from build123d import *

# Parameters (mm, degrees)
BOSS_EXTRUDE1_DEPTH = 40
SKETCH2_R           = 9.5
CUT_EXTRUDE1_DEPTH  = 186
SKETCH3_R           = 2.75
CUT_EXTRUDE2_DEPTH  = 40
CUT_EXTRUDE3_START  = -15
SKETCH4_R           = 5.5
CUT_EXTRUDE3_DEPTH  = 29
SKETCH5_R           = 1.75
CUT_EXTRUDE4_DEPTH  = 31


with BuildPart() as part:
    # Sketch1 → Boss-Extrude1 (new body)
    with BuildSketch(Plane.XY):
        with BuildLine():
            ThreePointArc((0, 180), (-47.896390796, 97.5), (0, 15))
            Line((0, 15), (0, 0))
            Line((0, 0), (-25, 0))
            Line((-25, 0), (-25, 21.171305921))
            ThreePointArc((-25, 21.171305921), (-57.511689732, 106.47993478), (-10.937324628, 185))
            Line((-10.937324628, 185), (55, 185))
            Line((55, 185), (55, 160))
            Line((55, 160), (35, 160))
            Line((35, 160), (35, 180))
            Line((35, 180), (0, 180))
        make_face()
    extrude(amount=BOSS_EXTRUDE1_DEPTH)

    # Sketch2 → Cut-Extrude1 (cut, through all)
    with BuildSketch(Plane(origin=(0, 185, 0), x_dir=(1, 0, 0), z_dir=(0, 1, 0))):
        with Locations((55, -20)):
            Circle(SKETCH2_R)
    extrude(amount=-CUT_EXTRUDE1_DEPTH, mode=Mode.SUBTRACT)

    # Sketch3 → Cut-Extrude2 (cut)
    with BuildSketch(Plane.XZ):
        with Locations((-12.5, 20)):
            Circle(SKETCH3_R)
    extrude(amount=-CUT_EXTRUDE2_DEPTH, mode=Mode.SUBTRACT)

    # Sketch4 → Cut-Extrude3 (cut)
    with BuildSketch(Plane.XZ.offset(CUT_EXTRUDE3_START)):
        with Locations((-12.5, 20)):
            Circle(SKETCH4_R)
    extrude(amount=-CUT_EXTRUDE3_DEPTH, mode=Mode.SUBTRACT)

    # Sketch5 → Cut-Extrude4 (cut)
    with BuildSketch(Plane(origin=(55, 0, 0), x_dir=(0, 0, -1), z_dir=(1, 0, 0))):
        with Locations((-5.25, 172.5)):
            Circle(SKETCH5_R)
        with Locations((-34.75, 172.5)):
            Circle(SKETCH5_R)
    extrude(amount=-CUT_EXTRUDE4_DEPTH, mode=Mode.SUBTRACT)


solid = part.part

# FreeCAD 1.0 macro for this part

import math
import FreeCAD as App
import Part
import Sketcher
from FreeCAD import Vector

doc = App.newDocument("Part")
body = doc.addObject("PartDesign::Body", "Body")

# Sketch on XY plane
sketch1 = body.newObject("Sketcher::SketchObject", "Sketch")
sketch1.AttachmentSupport = (doc.getObject("XY_Plane"), [""])
sketch1.MapMode = "FlatFace"
sketch1.addGeometry(Part.ArcOfCircle(Part.Circle(Vector(47, 98, 0), Vector(0, 0, 1), 95), math.radians(120), math.radians(240)), False)
sketch1.addGeometry(Part.LineSegment(Vector(0, 180, 0), Vector(35, 180, 0)), False)
sketch1.addGeometry(Part.LineSegment(Vector(35, 180, 0), Vector(35, 160, 0)), False)
sketch1.addGeometry(Part.LineSegment(Vector(35, 160, 0), Vector(55, 160, 0)), False)
sketch1.addGeometry(Part.LineSegment(Vector(55, 160, 0), Vector(55, 185, 0)), False)
sketch1.addGeometry(Part.LineSegment(Vector(55, 185, 0), Vector(-11, 185, 0)), False)
sketch1.addGeometry(Part.ArcOfCircle(Part.Circle(Vector(47, 98, 0), Vector(0, 0, 1), 105), math.radians(124), math.radians(227)), False)
sketch1.addGeometry(Part.LineSegment(Vector(-25, 21, 0), Vector(-25, 0, 0)), False)
sketch1.addGeometry(Part.LineSegment(Vector(-25, 0, 0), Vector(0, 0, 0)), False)
sketch1.addGeometry(Part.LineSegment(Vector(0, 0, 0), Vector(0, 15, 0)), False)
sketch1.addConstraint(Sketcher.Constraint("Coincident", 0, 1, 1, 1))
sketch1.addConstraint(Sketcher.Constraint("Coincident", 1, 2, 2, 1))
sketch1.addConstraint(Sketcher.Constraint("Coincident", 2, 2, 3, 1))
sketch1.addConstraint(Sketcher.Constraint("Coincident", 3, 2, 4, 1))
sketch1.addConstraint(Sketcher.Constraint("Coincident", 4, 2, 5, 1))
sketch1.addConstraint(Sketcher.Constraint("Coincident", 5, 2, 6, 1))
sketch1.addConstraint(Sketcher.Constraint("Coincident", 6, 2, 7, 1))
sketch1.addConstraint(Sketcher.Constraint("Coincident", 7, 2, 8, 1))
sketch1.addConstraint(Sketcher.Constraint("Coincident", 8, 2, 9, 1))
sketch1.addConstraint(Sketcher.Constraint("Coincident", 9, 2, 0, 2))
sketch1.addConstraint(Sketcher.Constraint("Horizontal", 1))
sketch1.addConstraint(Sketcher.Constraint("Vertical", 2))
sketch1.addConstraint(Sketcher.Constraint("Horizontal", 3))
sketch1.addConstraint(Sketcher.Constraint("Vertical", 4))
sketch1.addConstraint(Sketcher.Constraint("Horizontal", 5))
sketch1.addConstraint(Sketcher.Constraint("Vertical", 7))
sketch1.addConstraint(Sketcher.Constraint("Horizontal", 8))
sketch1.addConstraint(Sketcher.Constraint("Vertical", 9))
sketch1.addConstraint(Sketcher.Constraint("Coincident", 8, 2, -1, 1))
sketch1.addConstraint(Sketcher.Constraint("Coincident", 6, 3, 0, 3))
sketch1.addConstraint(Sketcher.Constraint("PointOnObject", 0, 1, -2))
sketch1.addConstraint(Sketcher.Constraint("Equal", 3, 2))
sketch1.addConstraint(Sketcher.Constraint("Equal", 8, 4))
sketch1.addConstraint(Sketcher.Constraint("Radius", 0, 95.0))
sketch1.addConstraint(Sketcher.Constraint("Radius", 6, 105.0))
sketch1.addConstraint(Sketcher.Constraint("DistanceX", 1, 1, 1, 2, 35.0))
sketch1.addConstraint(Sketcher.Constraint("DistanceX", 3, 1, 3, 2, 20.0))
sketch1.addConstraint(Sketcher.Constraint("DistanceX", 8, 1, 8, 2, 25.0))
sketch1.addConstraint(Sketcher.Constraint("DistanceY", 9, 1, 9, 2, 15.0))
sketch1.addConstraint(Sketcher.Constraint("DistanceY", -1, 1, 0, 1, 180.0))
pad1 = body.newObject("PartDesign::Pad", "Pad")
pad1.Profile = sketch1
pad1.Length = 40

# Sketch on XZ plane
sketch2 = body.newObject("Sketcher::SketchObject", "Sketch001")
sketch2.AttachmentSupport = (doc.getObject("XZ_Plane"), [""])
sketch2.MapMode = "FlatFace"
sketch2.AttachmentOffset = App.Placement(Vector(0, 0, -185), App.Rotation())
sketch2.addGeometry(Part.Circle(Vector(55, 20, 0), Vector(0, 0, 1), 10), False)
sketch2.addConstraint(Sketcher.Constraint("Diameter", 0, 19.0))
sketch2.addConstraint(Sketcher.Constraint("DistanceX", -1, 1, 0, 3, 55.0))
sketch2.addConstraint(Sketcher.Constraint("DistanceY", -1, 1, 0, 3, 20.0))
pocket1 = body.newObject("PartDesign::Pocket", "Pocket")
pocket1.Profile = sketch2
pocket1.Type = "ThroughAll"
pocket1.Reversed = True

# Sketch on XZ plane
sketch3 = body.newObject("Sketcher::SketchObject", "Sketch002")
sketch3.AttachmentSupport = (doc.getObject("XZ_Plane"), [""])
sketch3.MapMode = "FlatFace"
sketch3.addGeometry(Part.Circle(Vector(-12.5, 20, 0), Vector(0, 0, 1), 2.8), False)
sketch3.addConstraint(Sketcher.Constraint("Diameter", 0, 5.5))
sketch3.addConstraint(Sketcher.Constraint("DistanceY", -1, 1, 0, 3, 20.0))
sketch3.addConstraint(Sketcher.Constraint("DistanceX", 0, 3, -1, 1, 12.5))
pocket2 = body.newObject("PartDesign::Pocket", "Pocket001")
pocket2.Profile = sketch3
pocket2.Length = 40

# Sketch on XZ plane
sketch4 = body.newObject("Sketcher::SketchObject", "Sketch003")
sketch4.AttachmentSupport = (doc.getObject("XZ_Plane"), [""])
sketch4.MapMode = "FlatFace"
sketch4.AttachmentOffset = App.Placement(Vector(0, 0, -15), App.Rotation())
sketch4.addGeometry(Part.Circle(Vector(-12, 20, 0), Vector(0, 0, 1), 6), False)
sketch4.addConstraint(Sketcher.Constraint("Diameter", 0, 11.0))
sketch4.addConstraint(Sketcher.Constraint("DistanceY", -1, 1, 0, 3, 20.0))
sketch4.addConstraint(Sketcher.Constraint("DistanceX", 0, 3, -1, 1, 12.5))
pocket3 = body.newObject("PartDesign::Pocket", "Pocket002")
pocket3.Profile = sketch4
pocket3.Length = 29

# Sketch on YZ plane
sketch5 = body.newObject("Sketcher::SketchObject", "Sketch004")
sketch5.AttachmentSupport = (doc.getObject("YZ_Plane"), [""])
sketch5.MapMode = "FlatFace"
sketch5.AttachmentOffset = App.Placement(Vector(0, 0, 55), App.Rotation())
sketch5.addGeometry(Part.Circle(Vector(172.5, 5.2, 0), Vector(0, 0, 1), 1.8), False)
sketch5.addGeometry(Part.Circle(Vector(172.5, 34.8, 0), Vector(0, 0, 1), 1.8), False)
sketch5.addConstraint(Sketcher.Constraint("Equal", 0, 1))
sketch5.addConstraint(Sketcher.Constraint("Vertical", 0, 3, 1, 3))
sketch5.addConstraint(Sketcher.Constraint("Diameter", 0, 3.5))
sketch5.addConstraint(Sketcher.Constraint("DistanceX", -1, 1, 0, 3, 172.5))
sketch5.addConstraint(Sketcher.Constraint("DistanceY", 0, 3, 1, 3, 29.5))
sketch5.addConstraint(Sketcher.Constraint("DistanceY", -1, 1, 0, 3, 5.25))
pocket4 = body.newObject("PartDesign::Pocket", "Pocket003")
pocket4.Profile = sketch5
pocket4.Length = 31

doc.recompute()
